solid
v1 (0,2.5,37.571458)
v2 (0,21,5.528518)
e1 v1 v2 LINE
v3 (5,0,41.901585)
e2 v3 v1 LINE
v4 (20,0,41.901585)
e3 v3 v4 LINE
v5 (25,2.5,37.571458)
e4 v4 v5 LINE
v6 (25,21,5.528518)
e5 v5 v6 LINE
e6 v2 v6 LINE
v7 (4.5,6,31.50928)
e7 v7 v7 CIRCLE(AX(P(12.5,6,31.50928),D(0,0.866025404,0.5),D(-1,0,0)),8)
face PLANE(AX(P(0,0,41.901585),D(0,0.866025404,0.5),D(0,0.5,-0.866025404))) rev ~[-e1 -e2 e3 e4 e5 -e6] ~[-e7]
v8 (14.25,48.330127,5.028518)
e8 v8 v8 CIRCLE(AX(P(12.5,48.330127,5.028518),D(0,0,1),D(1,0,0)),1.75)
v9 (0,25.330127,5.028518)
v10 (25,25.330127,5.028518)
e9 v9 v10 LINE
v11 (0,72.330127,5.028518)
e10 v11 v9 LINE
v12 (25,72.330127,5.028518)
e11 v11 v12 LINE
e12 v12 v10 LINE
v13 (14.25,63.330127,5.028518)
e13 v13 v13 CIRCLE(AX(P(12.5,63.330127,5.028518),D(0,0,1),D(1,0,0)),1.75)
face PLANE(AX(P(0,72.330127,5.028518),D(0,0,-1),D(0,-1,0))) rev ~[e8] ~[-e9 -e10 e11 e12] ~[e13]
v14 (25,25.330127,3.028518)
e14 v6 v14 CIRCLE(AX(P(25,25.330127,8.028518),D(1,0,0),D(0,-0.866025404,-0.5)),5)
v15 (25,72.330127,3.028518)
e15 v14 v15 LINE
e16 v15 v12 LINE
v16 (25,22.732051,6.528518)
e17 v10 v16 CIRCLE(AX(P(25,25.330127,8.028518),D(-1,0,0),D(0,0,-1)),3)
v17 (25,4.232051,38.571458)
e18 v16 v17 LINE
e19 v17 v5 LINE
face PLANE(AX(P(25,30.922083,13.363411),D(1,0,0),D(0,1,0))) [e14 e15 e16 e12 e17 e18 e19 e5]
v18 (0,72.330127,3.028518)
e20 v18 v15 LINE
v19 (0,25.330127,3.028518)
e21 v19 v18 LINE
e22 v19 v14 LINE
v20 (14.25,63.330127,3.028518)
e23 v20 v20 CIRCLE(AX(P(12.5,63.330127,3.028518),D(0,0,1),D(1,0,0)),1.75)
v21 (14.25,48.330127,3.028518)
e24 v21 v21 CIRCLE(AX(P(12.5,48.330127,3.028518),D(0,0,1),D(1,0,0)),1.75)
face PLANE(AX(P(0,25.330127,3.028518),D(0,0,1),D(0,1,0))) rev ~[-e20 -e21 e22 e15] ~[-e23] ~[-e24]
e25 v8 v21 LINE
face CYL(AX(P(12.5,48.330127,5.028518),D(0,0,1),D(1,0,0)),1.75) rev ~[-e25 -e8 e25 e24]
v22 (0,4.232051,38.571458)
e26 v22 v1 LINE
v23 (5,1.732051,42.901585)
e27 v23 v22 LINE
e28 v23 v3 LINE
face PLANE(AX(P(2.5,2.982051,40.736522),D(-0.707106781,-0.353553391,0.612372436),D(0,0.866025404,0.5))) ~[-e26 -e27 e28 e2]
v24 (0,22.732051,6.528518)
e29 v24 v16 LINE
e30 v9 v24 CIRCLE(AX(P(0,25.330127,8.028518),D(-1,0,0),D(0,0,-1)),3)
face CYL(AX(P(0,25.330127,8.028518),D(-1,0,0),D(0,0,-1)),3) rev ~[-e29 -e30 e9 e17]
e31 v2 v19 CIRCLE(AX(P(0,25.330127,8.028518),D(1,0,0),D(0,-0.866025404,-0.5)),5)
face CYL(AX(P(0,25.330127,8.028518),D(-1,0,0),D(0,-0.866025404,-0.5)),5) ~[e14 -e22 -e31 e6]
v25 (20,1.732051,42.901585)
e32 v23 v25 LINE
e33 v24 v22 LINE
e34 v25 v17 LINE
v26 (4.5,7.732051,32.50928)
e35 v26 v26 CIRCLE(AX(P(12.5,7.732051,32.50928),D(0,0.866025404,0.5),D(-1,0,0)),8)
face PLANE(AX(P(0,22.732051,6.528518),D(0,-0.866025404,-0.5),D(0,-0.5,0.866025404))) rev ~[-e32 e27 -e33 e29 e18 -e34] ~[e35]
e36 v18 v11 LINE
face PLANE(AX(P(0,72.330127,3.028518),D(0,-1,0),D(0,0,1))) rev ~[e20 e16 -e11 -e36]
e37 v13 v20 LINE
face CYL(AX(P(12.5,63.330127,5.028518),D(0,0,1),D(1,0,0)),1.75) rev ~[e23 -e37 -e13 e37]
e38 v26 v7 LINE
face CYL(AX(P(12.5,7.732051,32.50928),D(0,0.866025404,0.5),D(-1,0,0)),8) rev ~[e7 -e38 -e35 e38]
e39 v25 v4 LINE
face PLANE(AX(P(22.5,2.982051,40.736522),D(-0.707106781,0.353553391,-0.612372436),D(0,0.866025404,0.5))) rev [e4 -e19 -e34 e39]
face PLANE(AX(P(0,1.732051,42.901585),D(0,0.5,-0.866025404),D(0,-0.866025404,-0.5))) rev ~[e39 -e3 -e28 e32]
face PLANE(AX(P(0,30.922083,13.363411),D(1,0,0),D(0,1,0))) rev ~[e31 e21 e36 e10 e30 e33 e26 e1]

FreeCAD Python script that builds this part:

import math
import FreeCAD as App
import Part
import Sketcher
Q = App.Units.Quantity


def edges_at(feature, points):
    """Names of the edges that pass closest to the given points."""
    edges = feature.Shape.Edges
    near = lambda p: min(range(len(edges)), key=lambda i: edges[i].distToShape(Part.Vertex(*p))[0])
    return sorted({f"Edge{near(p) + 1}" for p in points})

doc = App.newDocument("Part")
body = doc.addObject("PartDesign::Body", "Body")

sketch1 = doc.addObject("Sketcher::SketchObject", "Sketch")
body.addObject(sketch1)
sketch1.AttachmentSupport = (doc.YZ_Plane, [""])
sketch1.MapMode = "FlatFace"
sketch1.addGeometry(Part.LineSegment(App.Vector(1.7, 42.9, 0), App.Vector(0, 41.9, 0)), False)
sketch1.addGeometry(Part.LineSegment(App.Vector(0, 41.9, 0), App.Vector(21, 5.5, 0)), False)
sketch1.addGeometry(Part.ArcOfCircle(Part.Circle(App.Vector(25.3, 8, 0), App.Vector(0, 0, 1), 5), math.radians(-150), math.radians(-90)), False)
sketch1.addGeometry(Part.LineSegment(App.Vector(25.3, 3, 0), App.Vector(72.3, 3, 0)), False)
sketch1.addGeometry(Part.LineSegment(App.Vector(72.3, 3, 0), App.Vector(72.3, 5, 0)), False)
sketch1.addGeometry(Part.LineSegment(App.Vector(72.3, 5, 0), App.Vector(25.3, 5, 0)), False)
sketch1.addGeometry(Part.ArcOfCircle(Part.Circle(App.Vector(25.3, 8, 0), App.Vector(0, 0, 1), 3), math.radians(-150), math.radians(-90)), False)
sketch1.addGeometry(Part.LineSegment(App.Vector(22.7, 6.5, 0), App.Vector(1.7, 42.9, 0)), False)
sketch1.addConstraint(Sketcher.Constraint("Coincident", 0, 2, 1, 1))
sketch1.addConstraint(Sketcher.Constraint("Tangent", 1, 2, 2, 1))
sketch1.addConstraint(Sketcher.Constraint("Tangent", 2, 2, 3, 1))
sketch1.addConstraint(Sketcher.Constraint("Coincident", 3, 2, 4, 1))
sketch1.addConstraint(Sketcher.Constraint("Coincident", 4, 2, 5, 1))
sketch1.addConstraint(Sketcher.Constraint("Tangent", 5, 2, 6, 2))
sketch1.addConstraint(Sketcher.Constraint("Tangent", 6, 1, 7, 1))
sketch1.addConstraint(Sketcher.Constraint("Coincident", 7, 2, 0, 1))
sketch1.addConstraint(Sketcher.Constraint("Horizontal", 3))
sketch1.addConstraint(Sketcher.Constraint("Vertical", 4))
sketch1.addConstraint(Sketcher.Constraint("Horizontal", 5))
sketch1.addConstraint(Sketcher.Constraint("Coincident", 6, 3, 2, 3))
sketch1.addConstraint(Sketcher.Constraint("PointOnObject", 0, 2, -2))
sketch1.addConstraint(Sketcher.Constraint("Perpendicular", 0, 1))
sketch1.addConstraint(Sketcher.Constraint("Parallel", 1, 7))
sketch1.addConstraint(Sketcher.Constraint("Radius", 2, 5.0))
sketch1.addConstraint(Sketcher.Constraint("Radius", 6, 3.0))
sketch1.addConstraint(Sketcher.Constraint("DistanceX", 3, 1, 3, 2, 47.0))
sketch1.addConstraint(Sketcher.Constraint("Angle", 0, Q("-150 deg")))
sketch1.addConstraint(Sketcher.Constraint("Distance", 1, 42.0))
sketch1.addConstraint(Sketcher.Constraint("DistanceY", -1, 1, 2, 3, 8.028518))
pad1 = doc.addObject("PartDesign::Pad", "Pad")
body.addObject(pad1)
pad1.Profile = sketch1
pad1.Length = 25

sketch2 = doc.addObject("Sketcher::SketchObject", "Sketch001")
body.addObject(sketch2)
sketch2.Placement = App.Placement(App.Vector(0, 19.875969, 11.475396), App.Rotation(App.Vector(-1, 0, 0), App.Vector(0, -0.5, 0.866025404), App.Vector(0, 0.866025404, 0.5), "ZXY"))
sketch2.addGeometry(Part.Circle(App.Vector(-12, 24, 0), App.Vector(0, 0, 1), 8), False)
sketch2.addConstraint(Sketcher.Constraint("Diameter", 0, 16.0))
sketch2.addConstraint(Sketcher.Constraint("DistanceX", 0, 3, -1, 1, 12.5))
sketch2.addConstraint(Sketcher.Constraint("DistanceY", -1, 1, 0, 3, 24.287837))
pocket1 = doc.addObject("PartDesign::Pocket", "Pocket")
body.addObject(pocket1)
pocket1.Profile = sketch2
pocket1.Length = 25
doc.recompute()

chamfer = doc.addObject("PartDesign::Chamfer", "Chamfer")
body.addObject(chamfer)
chamfer.Base = (pocket1, edges_at(pocket1, [(0, 0.866, 42.402), (25, 0.866, 42.402)]))
chamfer.Size = 5

sketch3 = doc.addObject("Sketcher::SketchObject", "Sketch002")
body.addObject(sketch3)
sketch3.AttachmentSupport = (doc.XY_Plane, [""])
sketch3.MapMode = "FlatFace"
sketch3.AttachmentOffset = App.Placement(App.Vector(0, 0, 5.028518), App.Rotation())
sketch3.addGeometry(Part.Circle(App.Vector(12.5, 63.3, 0), App.Vector(0, 0, 1), 1.8), False)
sketch3.addGeometry(Part.Circle(App.Vector(12.5, 48.3, 0), App.Vector(0, 0, 1), 1.8), False)
sketch3.addConstraint(Sketcher.Constraint("Equal", 0, 1))
sketch3.addConstraint(Sketcher.Constraint("Vertical", 0, 3, 1, 3))
sketch3.addConstraint(Sketcher.Constraint("Diameter", 0, 3.5))
sketch3.addConstraint(Sketcher.Constraint("DistanceY", 1, 3, 0, 3, 15.0))
sketch3.addConstraint(Sketcher.Constraint("DistanceX", -1, 1, 0, 3, 12.5))
sketch3.addConstraint(Sketcher.Constraint("DistanceY", -1, 1, 0, 3, 63.330127))
pocket2 = doc.addObject("PartDesign::Pocket", "Pocket001")
body.addObject(pocket2)
pocket2.Profile = sketch3
pocket2.Length = 25

doc.recompute()
